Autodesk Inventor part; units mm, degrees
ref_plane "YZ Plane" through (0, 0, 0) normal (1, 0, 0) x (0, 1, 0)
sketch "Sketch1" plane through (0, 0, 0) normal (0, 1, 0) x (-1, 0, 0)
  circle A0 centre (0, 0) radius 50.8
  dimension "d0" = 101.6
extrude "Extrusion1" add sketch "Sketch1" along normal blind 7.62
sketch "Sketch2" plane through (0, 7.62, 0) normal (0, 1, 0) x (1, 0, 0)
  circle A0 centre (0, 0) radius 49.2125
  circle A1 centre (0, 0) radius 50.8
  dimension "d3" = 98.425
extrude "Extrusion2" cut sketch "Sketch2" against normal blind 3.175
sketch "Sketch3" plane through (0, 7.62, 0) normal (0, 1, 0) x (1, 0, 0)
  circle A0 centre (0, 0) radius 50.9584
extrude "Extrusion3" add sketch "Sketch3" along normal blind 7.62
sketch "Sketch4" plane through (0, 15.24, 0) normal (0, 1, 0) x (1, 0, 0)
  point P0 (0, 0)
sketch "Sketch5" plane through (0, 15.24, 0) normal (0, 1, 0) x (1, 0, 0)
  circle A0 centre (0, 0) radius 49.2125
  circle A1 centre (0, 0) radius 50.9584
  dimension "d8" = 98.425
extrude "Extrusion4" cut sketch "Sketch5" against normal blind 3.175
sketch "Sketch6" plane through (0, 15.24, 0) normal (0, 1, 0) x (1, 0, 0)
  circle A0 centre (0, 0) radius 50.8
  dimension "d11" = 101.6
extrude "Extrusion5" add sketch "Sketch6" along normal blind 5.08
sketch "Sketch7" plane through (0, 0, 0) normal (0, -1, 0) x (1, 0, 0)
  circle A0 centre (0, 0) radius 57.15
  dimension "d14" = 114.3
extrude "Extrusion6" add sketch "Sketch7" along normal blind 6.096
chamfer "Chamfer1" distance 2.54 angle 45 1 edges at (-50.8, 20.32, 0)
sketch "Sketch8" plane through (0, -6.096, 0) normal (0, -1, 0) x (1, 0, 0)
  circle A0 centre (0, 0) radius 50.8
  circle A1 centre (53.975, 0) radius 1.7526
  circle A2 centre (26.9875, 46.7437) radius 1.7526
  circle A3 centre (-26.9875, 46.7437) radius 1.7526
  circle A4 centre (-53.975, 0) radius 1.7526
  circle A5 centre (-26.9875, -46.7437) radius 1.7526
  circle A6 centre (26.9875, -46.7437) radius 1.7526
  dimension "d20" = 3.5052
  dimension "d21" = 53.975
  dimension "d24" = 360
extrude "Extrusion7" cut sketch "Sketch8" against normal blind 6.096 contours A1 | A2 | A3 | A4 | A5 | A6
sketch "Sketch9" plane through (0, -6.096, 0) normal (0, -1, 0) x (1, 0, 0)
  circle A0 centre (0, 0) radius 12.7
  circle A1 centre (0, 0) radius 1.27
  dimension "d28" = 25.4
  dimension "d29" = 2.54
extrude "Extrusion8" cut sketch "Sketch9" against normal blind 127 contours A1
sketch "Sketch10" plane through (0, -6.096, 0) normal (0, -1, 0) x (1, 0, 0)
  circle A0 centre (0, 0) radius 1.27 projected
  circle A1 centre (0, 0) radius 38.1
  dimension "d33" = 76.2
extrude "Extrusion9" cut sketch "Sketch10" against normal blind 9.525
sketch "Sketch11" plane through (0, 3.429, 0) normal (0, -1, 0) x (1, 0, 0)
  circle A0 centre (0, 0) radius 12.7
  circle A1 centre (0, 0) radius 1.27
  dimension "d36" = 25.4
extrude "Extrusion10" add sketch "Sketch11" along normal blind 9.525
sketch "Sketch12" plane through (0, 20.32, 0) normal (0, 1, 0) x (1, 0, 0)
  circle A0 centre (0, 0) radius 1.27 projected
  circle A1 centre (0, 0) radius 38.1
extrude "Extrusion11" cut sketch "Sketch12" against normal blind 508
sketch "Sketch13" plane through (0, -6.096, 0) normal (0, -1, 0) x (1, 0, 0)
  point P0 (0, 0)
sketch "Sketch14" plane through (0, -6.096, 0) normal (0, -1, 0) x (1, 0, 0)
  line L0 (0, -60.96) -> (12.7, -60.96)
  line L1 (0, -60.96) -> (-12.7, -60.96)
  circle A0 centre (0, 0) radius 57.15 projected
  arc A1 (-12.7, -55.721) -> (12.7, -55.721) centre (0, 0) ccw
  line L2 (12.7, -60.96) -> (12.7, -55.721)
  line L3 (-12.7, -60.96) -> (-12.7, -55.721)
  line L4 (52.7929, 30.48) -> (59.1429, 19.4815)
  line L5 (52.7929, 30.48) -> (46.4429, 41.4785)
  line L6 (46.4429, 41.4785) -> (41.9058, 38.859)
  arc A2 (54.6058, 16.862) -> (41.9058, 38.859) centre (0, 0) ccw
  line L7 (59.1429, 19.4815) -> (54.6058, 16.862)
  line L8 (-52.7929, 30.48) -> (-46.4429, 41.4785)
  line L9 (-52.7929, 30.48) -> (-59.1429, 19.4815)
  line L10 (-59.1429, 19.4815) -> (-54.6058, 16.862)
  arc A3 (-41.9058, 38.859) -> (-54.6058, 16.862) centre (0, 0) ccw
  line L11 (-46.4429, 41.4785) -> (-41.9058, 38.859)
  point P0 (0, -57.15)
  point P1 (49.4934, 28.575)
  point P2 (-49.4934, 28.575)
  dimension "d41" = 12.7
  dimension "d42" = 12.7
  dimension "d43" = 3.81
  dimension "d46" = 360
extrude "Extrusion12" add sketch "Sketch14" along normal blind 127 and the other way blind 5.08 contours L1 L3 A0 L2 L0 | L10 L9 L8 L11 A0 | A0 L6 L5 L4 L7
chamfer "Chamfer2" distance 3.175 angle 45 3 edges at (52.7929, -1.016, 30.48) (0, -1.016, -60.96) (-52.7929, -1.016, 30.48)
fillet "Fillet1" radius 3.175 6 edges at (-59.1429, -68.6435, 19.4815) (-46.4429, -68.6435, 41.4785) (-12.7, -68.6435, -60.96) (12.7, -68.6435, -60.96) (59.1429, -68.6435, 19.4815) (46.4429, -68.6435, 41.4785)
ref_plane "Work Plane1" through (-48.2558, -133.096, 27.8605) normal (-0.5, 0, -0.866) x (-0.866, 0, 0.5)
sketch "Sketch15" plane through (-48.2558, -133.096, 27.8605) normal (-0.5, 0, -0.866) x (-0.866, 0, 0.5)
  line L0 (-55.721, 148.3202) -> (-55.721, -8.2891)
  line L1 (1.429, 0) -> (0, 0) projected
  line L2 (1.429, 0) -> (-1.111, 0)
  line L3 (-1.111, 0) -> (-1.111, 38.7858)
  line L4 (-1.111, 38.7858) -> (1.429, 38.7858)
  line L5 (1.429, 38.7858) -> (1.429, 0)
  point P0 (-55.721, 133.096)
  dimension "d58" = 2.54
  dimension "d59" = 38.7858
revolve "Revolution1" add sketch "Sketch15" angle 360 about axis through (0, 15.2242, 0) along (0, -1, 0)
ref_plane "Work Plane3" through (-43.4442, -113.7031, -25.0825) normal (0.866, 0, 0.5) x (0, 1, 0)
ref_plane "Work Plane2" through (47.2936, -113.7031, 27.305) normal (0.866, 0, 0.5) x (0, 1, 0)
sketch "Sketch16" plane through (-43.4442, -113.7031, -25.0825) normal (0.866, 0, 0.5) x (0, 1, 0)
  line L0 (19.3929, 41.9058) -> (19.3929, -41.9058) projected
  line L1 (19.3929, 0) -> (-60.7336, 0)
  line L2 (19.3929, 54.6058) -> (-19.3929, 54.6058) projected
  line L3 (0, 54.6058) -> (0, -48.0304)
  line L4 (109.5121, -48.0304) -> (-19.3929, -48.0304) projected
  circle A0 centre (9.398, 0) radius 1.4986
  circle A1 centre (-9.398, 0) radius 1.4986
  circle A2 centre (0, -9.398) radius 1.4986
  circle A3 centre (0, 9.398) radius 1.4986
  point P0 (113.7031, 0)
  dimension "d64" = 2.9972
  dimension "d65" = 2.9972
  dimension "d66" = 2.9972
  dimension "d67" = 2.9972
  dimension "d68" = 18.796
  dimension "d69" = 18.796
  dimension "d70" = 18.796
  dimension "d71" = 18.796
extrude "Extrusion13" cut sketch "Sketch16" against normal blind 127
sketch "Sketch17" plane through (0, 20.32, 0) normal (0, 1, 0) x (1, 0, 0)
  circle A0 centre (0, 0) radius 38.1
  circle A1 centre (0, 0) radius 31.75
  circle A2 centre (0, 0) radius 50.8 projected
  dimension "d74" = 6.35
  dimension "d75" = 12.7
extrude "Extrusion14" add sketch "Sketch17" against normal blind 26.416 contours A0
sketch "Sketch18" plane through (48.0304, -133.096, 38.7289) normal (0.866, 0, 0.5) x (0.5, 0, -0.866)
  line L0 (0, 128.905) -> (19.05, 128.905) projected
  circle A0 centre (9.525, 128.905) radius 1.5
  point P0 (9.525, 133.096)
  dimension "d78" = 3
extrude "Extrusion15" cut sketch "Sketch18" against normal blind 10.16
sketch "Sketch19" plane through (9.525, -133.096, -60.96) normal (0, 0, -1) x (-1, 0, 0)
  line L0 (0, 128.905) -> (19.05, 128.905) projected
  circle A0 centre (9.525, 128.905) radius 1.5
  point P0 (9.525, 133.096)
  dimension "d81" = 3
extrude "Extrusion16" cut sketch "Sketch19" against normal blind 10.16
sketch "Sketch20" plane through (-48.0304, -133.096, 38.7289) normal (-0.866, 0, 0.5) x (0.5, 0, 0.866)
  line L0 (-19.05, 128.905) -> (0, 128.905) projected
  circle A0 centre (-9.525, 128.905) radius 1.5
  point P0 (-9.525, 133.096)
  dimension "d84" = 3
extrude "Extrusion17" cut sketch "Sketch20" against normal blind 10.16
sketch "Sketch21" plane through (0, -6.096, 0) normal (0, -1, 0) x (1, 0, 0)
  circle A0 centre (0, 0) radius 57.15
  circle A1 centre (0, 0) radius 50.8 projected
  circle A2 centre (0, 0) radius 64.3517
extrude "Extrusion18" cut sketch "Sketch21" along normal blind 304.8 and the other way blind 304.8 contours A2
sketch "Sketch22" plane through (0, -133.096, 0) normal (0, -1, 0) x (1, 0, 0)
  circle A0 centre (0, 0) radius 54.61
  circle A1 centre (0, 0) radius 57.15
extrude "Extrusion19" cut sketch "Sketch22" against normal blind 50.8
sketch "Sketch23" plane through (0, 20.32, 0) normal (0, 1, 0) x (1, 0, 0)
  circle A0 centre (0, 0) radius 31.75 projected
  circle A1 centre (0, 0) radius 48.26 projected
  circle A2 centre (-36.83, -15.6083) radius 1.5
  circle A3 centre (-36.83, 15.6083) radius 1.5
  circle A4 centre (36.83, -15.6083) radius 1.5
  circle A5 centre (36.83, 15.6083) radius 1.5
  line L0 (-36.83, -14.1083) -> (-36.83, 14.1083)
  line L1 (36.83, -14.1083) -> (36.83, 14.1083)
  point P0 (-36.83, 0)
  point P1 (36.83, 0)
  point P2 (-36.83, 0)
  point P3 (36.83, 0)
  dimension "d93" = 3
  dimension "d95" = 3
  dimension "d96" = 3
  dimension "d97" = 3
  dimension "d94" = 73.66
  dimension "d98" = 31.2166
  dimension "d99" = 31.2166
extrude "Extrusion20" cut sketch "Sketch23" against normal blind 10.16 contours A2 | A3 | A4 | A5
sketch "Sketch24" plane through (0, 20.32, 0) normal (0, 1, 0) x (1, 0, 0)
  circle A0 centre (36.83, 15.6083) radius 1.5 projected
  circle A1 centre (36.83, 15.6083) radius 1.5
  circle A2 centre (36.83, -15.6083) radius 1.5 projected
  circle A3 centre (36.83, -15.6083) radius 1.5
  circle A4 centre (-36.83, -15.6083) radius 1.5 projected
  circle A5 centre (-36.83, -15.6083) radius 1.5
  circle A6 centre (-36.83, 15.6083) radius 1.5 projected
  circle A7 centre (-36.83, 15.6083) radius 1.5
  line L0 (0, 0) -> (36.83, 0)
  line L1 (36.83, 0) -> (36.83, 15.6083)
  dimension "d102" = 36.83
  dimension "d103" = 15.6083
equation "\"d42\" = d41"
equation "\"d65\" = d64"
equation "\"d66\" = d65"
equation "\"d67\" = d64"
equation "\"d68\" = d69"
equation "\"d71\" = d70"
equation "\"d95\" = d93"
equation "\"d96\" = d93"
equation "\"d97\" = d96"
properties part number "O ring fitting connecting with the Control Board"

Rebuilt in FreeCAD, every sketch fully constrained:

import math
import FreeCAD as App
import Part
import Sketcher
Q = App.Units.Quantity


def edges_at(feature, points):
    """Names of the edges that pass closest to the given points."""
    edges = feature.Shape.Edges
    near = lambda p: min(range(len(edges)), key=lambda i: edges[i].distToShape(Part.Vertex(*p))[0])
    return sorted({f"Edge{near(p) + 1}" for p in points})


def add_polygon(sketch, points):
    """Adds a closed chain of lines whose ends are joined by coincident constraints."""
    first, n = sketch.GeometryCount, len(points)
    for a, b in zip(points, points[1:] + points[:1]):
        sketch.addGeometry(Part.LineSegment(App.Vector(*a, 0), App.Vector(*b, 0)), False)
    for i in range(n):
        sketch.addConstraint(Sketcher.Constraint("Coincident", first + i, 2, first + (i + 1) % n, 1))

doc = App.newDocument("Part")
body = doc.addObject("PartDesign::Body", "Body")
body.AllowCompound = True

# Sketch on XZ plane
sketch1 = body.newObject("Sketcher::SketchObject", "Sketch")
sketch1.AttachmentSupport = (doc.getObject("XZ_Plane"), [""])
sketch1.MapMode = "FlatFace"
sketch1.addGeometry(Part.Circle(App.Vector(0, 0, 0), App.Vector(0, 0, 1), 51), False)
sketch1.addConstraint([
    Sketcher.Constraint("Coincident", 0, 3, -1, 1),
    Sketcher.Constraint("Diameter", 0, Q("4 in")),
])
pad1 = body.newObject("PartDesign::Pad", "Pad")
pad1.Profile = sketch1
pad1.Length = Q("0.3 in")
pad1.Reversed = True

# Sketch on XZ plane
sketch2 = body.newObject("Sketcher::SketchObject", "Sketch001")
sketch2.AttachmentSupport = (doc.getObject("XZ_Plane"), [""])
sketch2.MapMode = "FlatFace"
sketch2.AttachmentOffset = App.Placement(App.Vector(0, 0, -0.3 * 25.4), App.Rotation())
sketch2.addGeometry([
    Part.Circle(App.Vector(0, 0, 0), App.Vector(0, 0, 1), 51),
    Part.Circle(App.Vector(0, 0, 0), App.Vector(0, 0, 1), 49),
], False)
sketch2.addConstraint([
    Sketcher.Constraint("Coincident", 0, 3, -1, 1),
    Sketcher.Constraint("Coincident", 1, 3, -1, 1),
    Sketcher.Constraint("Diameter", 0, Q("4 in")),
    Sketcher.Constraint("Diameter", 1, Q("3.875 in")),
])
pocket1 = body.newObject("PartDesign::Pocket", "Pocket")
pocket1.Profile = sketch2
pocket1.Length = Q("0.125 in")
pocket1.Reversed = True

# Sketch on XZ plane
sketch3 = body.newObject("Sketcher::SketchObject", "Sketch002")
sketch3.AttachmentSupport = (doc.getObject("XZ_Plane"), [""])
sketch3.MapMode = "FlatFace"
sketch3.AttachmentOffset = App.Placement(App.Vector(0, 0, -0.3 * 25.4), App.Rotation())
sketch3.addGeometry(Part.Circle(App.Vector(0, 0, 0), App.Vector(0, 0, 1), 51), False)
sketch3.addConstraint([
    Sketcher.Constraint("Coincident", 0, 3, -1, 1),
    Sketcher.Constraint("Diameter", 0, Q("101.9168 mm")),
])
pad2 = body.newObject("PartDesign::Pad", "Pad001")
pad2.Profile = sketch3
pad2.Length = Q("0.3 in")
pad2.Reversed = True

# Sketch on XZ plane
sketch4 = body.newObject("Sketcher::SketchObject", "Sketch003")
sketch4.AttachmentSupport = (doc.getObject("XZ_Plane"), [""])
sketch4.MapMode = "FlatFace"
sketch4.AttachmentOffset = App.Placement(App.Vector(0, 0, -0.6 * 25.4), App.Rotation())
sketch4.addGeometry([
    Part.Circle(App.Vector(0, 0, 0), App.Vector(0, 0, 1), 51),
    Part.Circle(App.Vector(0, 0, 0), App.Vector(0, 0, 1), 49),
], False)
sketch4.addConstraint([
    Sketcher.Constraint("Coincident", 0, 3, -1, 1),
    Sketcher.Constraint("Coincident", 1, 3, -1, 1),
    Sketcher.Constraint("Diameter", 1, Q("3.875 in")),
    Sketcher.Constraint("Diameter", 0, Q("101.9168 mm")),
])
pocket2 = body.newObject("PartDesign::Pocket", "Pocket001")
pocket2.Profile = sketch4
pocket2.Length = Q("0.125 in")
pocket2.Reversed = True

# Sketch on XZ plane
sketch5 = body.newObject("Sketcher::SketchObject", "Sketch004")
sketch5.AttachmentSupport = (doc.getObject("XZ_Plane"), [""])
sketch5.MapMode = "FlatFace"
sketch5.AttachmentOffset = App.Placement(App.Vector(0, 0, -0.6 * 25.4), App.Rotation())
sketch5.addGeometry(Part.Circle(App.Vector(0, 0, 0), App.Vector(0, 0, 1), 51), False)
sketch5.addConstraint([
    Sketcher.Constraint("Coincident", 0, 3, -1, 1),
    Sketcher.Constraint("Diameter", 0, Q("4 in")),
])
pad3 = body.newObject("PartDesign::Pad", "Pad002")
pad3.Profile = sketch5
pad3.Length = Q("0.2 in")
pad3.Reversed = True

# Sketch on XZ plane
sketch6 = body.newObject("Sketcher::SketchObject", "Sketch005")
sketch6.AttachmentSupport = (doc.getObject("XZ_Plane"), [""])
sketch6.MapMode = "FlatFace"
sketch6.addGeometry(Part.Circle(App.Vector(0, 0, 0), App.Vector(0, 0, 1), 57), False)
sketch6.addConstraint([
    Sketcher.Constraint("Coincident", 0, 3, -1, 1),
    Sketcher.Constraint("Diameter", 0, Q("4.5 in")),
])
pad4 = body.newObject("PartDesign::Pad", "Pad003")
pad4.Profile = sketch6
pad4.Length = Q("0.24 in")
doc.recompute()

chamfer = body.newObject("PartDesign::Chamfer", "Chamfer")
chamfer.Base = (pad4, edges_at(pad4, [(-50.8, 20.32, 0)]))
chamfer.Size = Q("0.1 in")

# Sketch on XZ plane
sketch7 = body.newObject("Sketcher::SketchObject", "Sketch006")
sketch7.AttachmentSupport = (doc.getObject("XZ_Plane"), [""])
sketch7.MapMode = "FlatFace"
sketch7.AttachmentOffset = App.Placement(App.Vector(0, 0, 0.24 * 25.4), App.Rotation())
sketch7.addGeometry([
    Part.Circle(App.Vector(54, 0, 0), App.Vector(0, 0, 1), 1.8),  # 0
    Part.Circle(App.Vector(27, 46.7, 0), App.Vector(0, 0, 1), 1.8),  # 1
    Part.Circle(App.Vector(-27, 46.7, 0), App.Vector(0, 0, 1), 1.8),  # 2
    Part.Circle(App.Vector(-54, 0, 0), App.Vector(0, 0, 1), 1.8),  # 3
    Part.Circle(App.Vector(-27, -46.7, 0), App.Vector(0, 0, 1), 1.8),  # 4
    Part.Circle(App.Vector(27, -46.7, 0), App.Vector(0, 0, 1), 1.8),  # 5
], False)
sketch7.addConstraint([
    Sketcher.Constraint("Equal", 0, 1),
    Sketcher.Constraint("Equal", 1, 2),
    Sketcher.Constraint("Equal", 2, 3),
    Sketcher.Constraint("Equal", 3, 4),
    Sketcher.Constraint("Equal", 4, 5),
    Sketcher.Constraint("Symmetric", 0, 3, 3, 3, -1, 1),
    Sketcher.Constraint("Symmetric", 1, 3, 4, 3, -1, 1),
    Sketcher.Constraint("Symmetric", 2, 3, 5, 3, -1, 1),
    Sketcher.Constraint("Symmetric", 1, 3, 2, 3, -2),
    Sketcher.Constraint("PointOnObject", 0, 3, -1),
    Sketcher.Constraint("Diameter", 0, Q("0.138 in")),
    Sketcher.Constraint("DistanceX", -1, 1, 0, 3, Q("2.125 in")),
    Sketcher.Constraint("DistanceX", 2, 3, 1, 3, Q("2.125 in")),
    Sketcher.Constraint("DistanceY", -1, 1, 1, 3, Q("1.8403 in")),
])
pocket3 = body.newObject("PartDesign::Pocket", "Pocket002")
pocket3.Profile = sketch7
pocket3.Length = Q("0.24 in")

# Sketch on XZ plane
sketch8 = body.newObject("Sketcher::SketchObject", "Sketch007")
sketch8.AttachmentSupport = (doc.getObject("XZ_Plane"), [""])
sketch8.MapMode = "FlatFace"
sketch8.AttachmentOffset = App.Placement(App.Vector(0, 0, 0.24 * 25.4), App.Rotation())
sketch8.addGeometry(Part.Circle(App.Vector(0, 0, 0), App.Vector(0, 0, 1), 1.3), False)
sketch8.addConstraint([
    Sketcher.Constraint("Coincident", 0, 3, -1, 1),
    Sketcher.Constraint("Diameter", 0, Q("0.1 in")),
])
pocket4 = body.newObject("PartDesign::Pocket", "Pocket003")
pocket4.Profile = sketch8
pocket4.Length = Q("5 in")

# Sketch on XZ plane
sketch9 = body.newObject("Sketcher::SketchObject", "Sketch008")
sketch9.AttachmentSupport = (doc.getObject("XZ_Plane"), [""])
sketch9.MapMode = "FlatFace"
sketch9.AttachmentOffset = App.Placement(App.Vector(0, 0, 0.24 * 25.4), App.Rotation())
sketch9.addGeometry([
    Part.Circle(App.Vector(0, 0, 0), App.Vector(0, 0, 1), 38.1),
    Part.Circle(App.Vector(0, 0, 0), App.Vector(0, 0, 1), 1.3),
], False)
sketch9.addConstraint([
    Sketcher.Constraint("Coincident", 0, 3, -1, 1),
    Sketcher.Constraint("Coincident", 1, 3, -1, 1),
    Sketcher.Constraint("Diameter", 0, Q("3 in")),
    Sketcher.Constraint("Diameter", 1, Q("0.1 in")),
])
pocket5 = body.newObject("PartDesign::Pocket", "Pocket004")
pocket5.Profile = sketch9
pocket5.Length = Q("0.375 in")

# Sketch on XZ plane
sketch10 = body.newObject("Sketcher::SketchObject", "Sketch009")
sketch10.AttachmentSupport = (doc.getObject("XZ_Plane"), [""])
sketch10.MapMode = "FlatFace"
sketch10.AttachmentOffset = App.Placement(App.Vector(0, 0, -0.135 * 25.4), App.Rotation())
sketch10.addGeometry([
    Part.Circle(App.Vector(0, 0, 0), App.Vector(0, 0, 1), 12.7),
    Part.Circle(App.Vector(0, 0, 0), App.Vector(0, 0, 1), 1.3),
], False)
sketch10.addConstraint([
    Sketcher.Constraint("Coincident", 0, 3, -1, 1),
    Sketcher.Constraint("Coincident", 1, 3, -1, 1),
    Sketcher.Constraint("Diameter", 0, Q("1 in")),
    Sketcher.Constraint("Diameter", 1, Q("0.1 in")),
])
pad5 = body.newObject("PartDesign::Pad", "Pad004")
pad5.Profile = sketch10
pad5.Length = Q("0.375 in")

# Sketch on XZ plane
sketch11 = body.newObject("Sketcher::SketchObject", "Sketch010")
sketch11.AttachmentSupport = (doc.getObject("XZ_Plane"), [""])
sketch11.MapMode = "FlatFace"
sketch11.AttachmentOffset = App.Placement(App.Vector(0, 0, -0.8 * 25.4), App.Rotation())
sketch11.addGeometry([
    Part.Circle(App.Vector(0, 0, 0), App.Vector(0, 0, 1), 38.1),
    Part.Circle(App.Vector(0, 0, 0), App.Vector(0, 0, 1), 1.3),
], False)
sketch11.addConstraint([
    Sketcher.Constraint("Coincident", 0, 3, -1, 1),
    Sketcher.Constraint("Coincident", 1, 3, -1, 1),
    Sketcher.Constraint("Diameter", 0, Q("3 in")),
    Sketcher.Constraint("Diameter", 1, Q("0.1 in")),
])
pocket6 = body.newObject("PartDesign::Pocket", "Pocket005")
pocket6.Profile = sketch11
pocket6.Length = Q("20 in")
pocket6.Reversed = True

# Sketch on XZ plane
sketch12 = body.newObject("Sketcher::SketchObject", "Sketch011")
sketch12.AttachmentSupport = (doc.getObject("XZ_Plane"), [""])
sketch12.MapMode = "FlatFace"
sketch12.AttachmentOffset = App.Placement(App.Vector(0, 0, 0.24 * 25.4), App.Rotation())
sketch12.addGeometry([
    Part.LineSegment(App.Vector(-13, -61, 0), App.Vector(13, -61, 0)),  # 0
    Part.LineSegment(App.Vector(13, -61, 0), App.Vector(13, -56, 0)),  # 1
    Part.ArcOfCircle(Part.Circle(App.Vector(0, 0, 0), App.Vector(0, 0, 1), 57), math.radians(-103), math.radians(-77)),  # 2
    Part.LineSegment(App.Vector(-13, -56, 0), App.Vector(-13, -61, 0)),  # 3
    Part.LineSegment(App.Vector(-59, 19, 0), App.Vector(-55, 17, 0)),  # 4
    Part.ArcOfCircle(Part.Circle(App.Vector(0, 0, 0), App.Vector(0, 0, 1), 57), math.radians(137), math.radians(163)),  # 5
    Part.LineSegment(App.Vector(-42, 39, 0), App.Vector(-46, 41, 0)),  # 6
    Part.LineSegment(App.Vector(-46, 41, 0), App.Vector(-59, 19, 0)),  # 7
    Part.ArcOfCircle(Part.Circle(App.Vector(0, 0, 0), App.Vector(0, 0, 1), 57), math.radians(17), math.radians(43)),  # 8
    Part.LineSegment(App.Vector(55, 17, 0), App.Vector(59, 19, 0)),  # 9
    Part.LineSegment(App.Vector(59, 19, 0), App.Vector(46, 41, 0)),  # 10
    Part.LineSegment(App.Vector(46, 41, 0), App.Vector(42, 39, 0)),  # 11
], False)
sketch12.addConstraint([
    Sketcher.Constraint("Coincident", 0, 2, 1, 1),
    Sketcher.Constraint("Coincident", 1, 2, 2, 2),
    Sketcher.Constraint("Coincident", 2, 1, 3, 1),
    Sketcher.Constraint("Coincident", 3, 2, 0, 1),
    Sketcher.Constraint("Coincident", 4, 2, 5, 2),
    Sketcher.Constraint("Coincident", 5, 1, 6, 1),
    Sketcher.Constraint("Coincident", 6, 2, 7, 1),
    Sketcher.Constraint("Coincident", 7, 2, 4, 1),
    Sketcher.Constraint("Coincident", 8, 1, 9, 1),
    Sketcher.Constraint("Coincident", 9, 2, 10, 1),
    Sketcher.Constraint("Coincident", 10, 2, 11, 1),
    Sketcher.Constraint("Coincident", 11, 2, 8, 2),
    Sketcher.Constraint("Horizontal", 0),
    Sketcher.Constraint("Vertical", 1),
    Sketcher.Constraint("Vertical", 3),
    Sketcher.Constraint("Coincident", 2, 3, -1, 1),
    Sketcher.Constraint("Coincident", 5, 3, -1, 1),
    Sketcher.Constraint("Coincident", 8, 3, -1, 1),
    Sketcher.Constraint("Equal", 2, 5),
    Sketcher.Constraint("Equal", 5, 8),
    Sketcher.Constraint("Symmetric", 7, 2, 9, 2, -2),
    Sketcher.Constraint("Symmetric", 6, 2, 10, 2, -2),
    Sketcher.Constraint("Parallel", 4, 6),
    Sketcher.Constraint("Perpendicular", 6, 7),
    Sketcher.Constraint("Perpendicular", 9, 10),
    Sketcher.Constraint("Perpendicular", 10, 11),
    Sketcher.Constraint("Horizontal", 1, 2, 2, 1),
    Sketcher.Constraint("Equal", 4, 6),
    Sketcher.Constraint("DistanceX", -1, 1, 0, 2, Q("0.5 in")),
    Sketcher.Constraint("DistanceX", 4, 2, 5, 1, Q("0.5 in")),
    Sketcher.Constraint("Radius", 2, Q("2.25 in")),
    Sketcher.Constraint("Distance", 7, Q("1 in")),
    Sketcher.Constraint("DistanceY", 0, 2, -1, 1, Q("2.4 in")),
    Sketcher.Constraint("DistanceY", -1, 1, 6, 2, Q("1.633 in")),
])
pad6 = body.newObject("PartDesign::Pad", "Pad005")
pad6.Profile = sketch12
pad6.Type = "TwoLengths"
pad6.Length = Q("5 in")
pad6.Length2 = Q("0.2 in")
doc.recompute()

chamfer2 = body.newObject("PartDesign::Chamfer", "Chamfer001")
chamfer2.Base = (pad6, edges_at(pad6, [(52.793, -1.016, 30.48), (0, -1.016, -60.96), (-52.793, -1.016, 30.48)]))
chamfer2.Size = Q("0.125 in")
doc.recompute()

fillet = body.newObject("PartDesign::Fillet", "Fillet")
fillet.Base = (chamfer2, edges_at(chamfer2, [
    (-59.143, -68.644, 19.482),
    (-46.443, -68.644, 41.478),
    (-12.7, -68.644, -60.96),
    (12.7, -68.644, -60.96),
    (59.143, -68.644, 19.482),
    (46.443, -68.644, 41.478),
]))
fillet.Radius = Q("0.125 in")

# Sketch on an angled plane
sketch13 = body.newObject("Sketcher::SketchObject", "Sketch012")
sketch13.Placement = App.Placement(App.Vector(-48.2558, -133.096, 27.8605), App.Rotation(App.Vector(-0.866025404, 0, 0.5), App.Vector(0, 1, 0), App.Vector(-0.5, 0, -0.866025404), "ZXY"))
add_polygon(sketch13, [(-1.1, 0), (1.4, 0), (1.4, 38.8), (-1.1, 38.8)])  # lines 0-3
sketch13.addGeometry(Part.LineSegment(App.Vector(-55.7, 38.8, 0), App.Vector(-55.7, 0, 0)), True)  # axis
sketch13.addConstraint([
    Sketcher.Constraint("Horizontal", 0),
    Sketcher.Constraint("Vertical", 1),
    Sketcher.Constraint("Horizontal", 2),
    Sketcher.Constraint("Vertical", 3),
    Sketcher.Constraint("Vertical", 4),
    Sketcher.Constraint("PointOnObject", 0, 2, -1),
    Sketcher.Constraint("PointOnObject", 4, 2, -1),
    Sketcher.Constraint("Horizontal", 2, 2, 4, 1),
    Sketcher.Constraint("DistanceX", 0, 1, 0, 2, Q("0.1 in")),
    Sketcher.Constraint("DistanceY", 1, 1, 1, 2, Q("1.527 in")),
    Sketcher.Constraint("DistanceX", 4, 1, 2, 2, Q("2.15 in")),
    Sketcher.Constraint("DistanceX", -1, 1, 0, 2, Q("1.429 mm")),
])
revolution = body.newObject("PartDesign::Revolution", "Revolution")
revolution.Profile = sketch13
revolution.ReferenceAxis = (sketch13, ["Axis0"])
revolution.Angle = 360

# Sketch on an angled plane
sketch14 = body.newObject("Sketcher::SketchObject", "Sketch013")
sketch14.Placement = App.Placement(App.Vector(-43.4442, -113.7031, -25.0825), App.Rotation(App.Vector(0, 1, 0), App.Vector(-0.5, 0, 0.866025404), App.Vector(0.866025404, 0, 0.5), "ZXY"))
sketch14.addGeometry([
    Part.Circle(App.Vector(9.4, 0, 0), App.Vector(0, 0, 1), 1.5),
    Part.Circle(App.Vector(0, -9.4, 0), App.Vector(0, 0, 1), 1.5),
    Part.Circle(App.Vector(-9.4, 0, 0), App.Vector(0, 0, 1), 1.5),
    Part.Circle(App.Vector(0, 9.4, 0), App.Vector(0, 0, 1), 1.5),
], False)
sketch14.addConstraint([
    Sketcher.Constraint("Equal", 0, 1),
    Sketcher.Constraint("Equal", 1, 2),
    Sketcher.Constraint("Equal", 2, 3),
    Sketcher.Constraint("Symmetric", 0, 3, 2, 3, -1, 1),
    Sketcher.Constraint("Symmetric", 1, 3, 3, 3, -1, 1),
    Sketcher.Constraint("PointOnObject", 0, 3, -1),
    Sketcher.Constraint("PointOnObject", 1, 3, -2),
    Sketcher.Constraint("Diameter", 0, Q("0.118 in")),
    Sketcher.Constraint("DistanceX", 2, 3, 0, 3, Q("0.74 in")),
    Sketcher.Constraint("DistanceY", 1, 3, 3, 3, Q("0.74 in")),
])
pocket7 = body.newObject("PartDesign::Pocket", "Pocket006")
pocket7.Profile = sketch14
pocket7.Length = Q("5 in")

# Sketch on XZ plane
sketch15 = body.newObject("Sketcher::SketchObject", "Sketch014")
sketch15.AttachmentSupport = (doc.getObject("XZ_Plane"), [""])
sketch15.MapMode = "FlatFace"
sketch15.AttachmentOffset = App.Placement(App.Vector(0, 0, -0.8 * 25.4), App.Rotation())
sketch15.addGeometry([
    Part.Circle(App.Vector(0, 0, 0), App.Vector(0, 0, 1), 38),
    Part.Circle(App.Vector(0, 0, 0), App.Vector(0, 0, 1), 32),
], False)
sketch15.addConstraint([
    Sketcher.Constraint("Coincident", 0, 3, -1, 1),
    Sketcher.Constraint("Coincident", 1, 3, -1, 1),
    Sketcher.Constraint("Diameter", 0, Q("3 in")),
    Sketcher.Constraint("Diameter", 1, Q("2.5 in")),
])
pad7 = body.newObject("PartDesign::Pad", "Pad006")
pad7.Profile = sketch15
pad7.Length = Q("1.04 in")

# Sketch on an angled plane
sketch16 = body.newObject("Sketcher::SketchObject", "Sketch015")
sketch16.Placement = App.Placement(App.Vector(48.0304, -133.096, 38.7289), App.Rotation(App.Vector(0.5, 0, -0.866025404), App.Vector(0, 1, 0), App.Vector(0.866025404, 0, 0.5), "ZXY"))
sketch16.addGeometry(Part.Circle(App.Vector(9.5, 128.9, 0), App.Vector(0, 0, 1), 1.5), False)
sketch16.addConstraint([
    Sketcher.Constraint("Diameter", 0, Q("0.1181 in")),
    Sketcher.Constraint("DistanceX", -1, 1, 0, 3, Q("0.375 in")),
    Sketcher.Constraint("DistanceY", -1, 1, 0, 3, Q("5.075 in")),
])
pocket8 = body.newObject("PartDesign::Pocket", "Pocket007")
pocket8.Profile = sketch16
pocket8.Length = Q("0.4 in")

# Sketch on XY plane
sketch17 = body.newObject("Sketcher::SketchObject", "Sketch016")
sketch17.AttachmentSupport = (doc.getObject("XY_Plane"), [""])
sketch17.MapMode = "FlatFace"
sketch17.AttachmentOffset = App.Placement(App.Vector(0, 0, -2.4 * 25.4), App.Rotation())
sketch17.addGeometry(Part.Circle(App.Vector(0, -4.2, 0), App.Vector(0, 0, 1), 1.5), False)
sketch17.addConstraint([
    Sketcher.Constraint("PointOnObject", 0, 3, -2),
    Sketcher.Constraint("Diameter", 0, Q("0.1181 in")),
    Sketcher.Constraint("DistanceY", 0, 3, -1, 1, Q("0.165 in")),
])
pocket9 = body.newObject("PartDesign::Pocket", "Pocket008")
pocket9.Profile = sketch17
pocket9.Length = Q("0.4 in")
pocket9.Reversed = True

# Sketch on an angled plane
sketch18 = body.newObject("Sketcher::SketchObject", "Sketch017")
sketch18.Placement = App.Placement(App.Vector(-48.0304, -133.096, 38.7289), App.Rotation(App.Vector(0.5, 0, 0.866025404), App.Vector(0, 1, 0), App.Vector(-0.866025404, 0, 0.5), "ZXY"))
sketch18.addGeometry(Part.Circle(App.Vector(-9.5, 128.9, 0), App.Vector(0, 0, 1), 1.5), False)
sketch18.addConstraint([
    Sketcher.Constraint("Diameter", 0, Q("0.1181 in")),
    Sketcher.Constraint("DistanceX", 0, 3, -1, 1, Q("0.375 in")),
    Sketcher.Constraint("DistanceY", -1, 1, 0, 3, Q("5.075 in")),
])
pocket10 = body.newObject("PartDesign::Pocket", "Pocket009")
pocket10.Profile = sketch18
pocket10.Length = Q("0.4 in")

# Sketch on XZ plane
sketch19 = body.newObject("Sketcher::SketchObject", "Sketch018")
sketch19.AttachmentSupport = (doc.getObject("XZ_Plane"), [""])
sketch19.MapMode = "FlatFace"
sketch19.AttachmentOffset = App.Placement(App.Vector(0, 0, 0.24 * 25.4), App.Rotation())
sketch19.addGeometry([
    Part.Circle(App.Vector(0, 0, 0), App.Vector(0, 0, 1), 64),
    Part.Circle(App.Vector(0, 0, 0), App.Vector(0, 0, 1), 57),
], False)
sketch19.addConstraint([
    Sketcher.Constraint("Coincident", 0, 3, -1, 1),
    Sketcher.Constraint("Coincident", 1, 3, -1, 1),
    Sketcher.Constraint("Diameter", 1, Q("4.5 in")),
    Sketcher.Constraint("Diameter", 0, Q("128.7034 mm")),
])
pocket11 = body.newObject("PartDesign::Pocket", "Pocket010")
pocket11.Profile = sketch19
pocket11.Type = "ThroughAll"
pocket11.Midplane = True

# Sketch on XZ plane
sketch20 = body.newObject("Sketcher::SketchObject", "Sketch019")
sketch20.AttachmentSupport = (doc.getObject("XZ_Plane"), [""])
sketch20.MapMode = "FlatFace"
sketch20.AttachmentOffset = App.Placement(App.Vector(0, 0, 5.24 * 25.4), App.Rotation())
sketch20.addGeometry([
    Part.Circle(App.Vector(0, 0, 0), App.Vector(0, 0, 1), 57),
    Part.Circle(App.Vector(0, 0, 0), App.Vector(0, 0, 1), 55),
], False)
sketch20.addConstraint([
    Sketcher.Constraint("Coincident", 0, 3, -1, 1),
    Sketcher.Constraint("Coincident", 1, 3, -1, 1),
    Sketcher.Constraint("Diameter", 0, Q("4.5 in")),
    Sketcher.Constraint("Diameter", 1, Q("4.3 in")),
])
pocket12 = body.newObject("PartDesign::Pocket", "Pocket011")
pocket12.Profile = sketch20
pocket12.Length = Q("2 in")

# Sketch on XZ plane
sketch21 = body.newObject("Sketcher::SketchObject", "Sketch020")
sketch21.AttachmentSupport = (doc.getObject("XZ_Plane"), [""])
sketch21.MapMode = "FlatFace"
sketch21.AttachmentOffset = App.Placement(App.Vector(0, 0, -0.8 * 25.4), App.Rotation())
sketch21.addGeometry([
    Part.Circle(App.Vector(-36.8, 15.6, 0), App.Vector(0, 0, 1), 1.5),
    Part.Circle(App.Vector(-36.8, -15.6, 0), App.Vector(0, 0, 1), 1.5),
    Part.Circle(App.Vector(36.8, 15.6, 0), App.Vector(0, 0, 1), 1.5),
    Part.Circle(App.Vector(36.8, -15.6, 0), App.Vector(0, 0, 1), 1.5),
], False)
sketch21.addConstraint([
    Sketcher.Constraint("Equal", 0, 1),
    Sketcher.Constraint("Equal", 1, 2),
    Sketcher.Constraint("Equal", 2, 3),
    Sketcher.Constraint("Symmetric", 1, 3, 2, 3, -1, 1),
    Sketcher.Constraint("Symmetric", 0, 3, 3, 3, -1, 1),
    Sketcher.Constraint("Symmetric", 0, 3, 2, 3, -2),
    Sketcher.Constraint("Diameter", 0, Q("0.1181 in")),
    Sketcher.Constraint("DistanceX", 0, 3, 2, 3, Q("2.9 in")),
    Sketcher.Constraint("DistanceY", 1, 3, 0, 3, Q("1.229 in")),
])
pocket13 = body.newObject("PartDesign::Pocket", "Pocket012")
pocket13.Profile = sketch21
pocket13.Length = Q("0.4 in")
pocket13.Reversed = True

doc.recompute()
